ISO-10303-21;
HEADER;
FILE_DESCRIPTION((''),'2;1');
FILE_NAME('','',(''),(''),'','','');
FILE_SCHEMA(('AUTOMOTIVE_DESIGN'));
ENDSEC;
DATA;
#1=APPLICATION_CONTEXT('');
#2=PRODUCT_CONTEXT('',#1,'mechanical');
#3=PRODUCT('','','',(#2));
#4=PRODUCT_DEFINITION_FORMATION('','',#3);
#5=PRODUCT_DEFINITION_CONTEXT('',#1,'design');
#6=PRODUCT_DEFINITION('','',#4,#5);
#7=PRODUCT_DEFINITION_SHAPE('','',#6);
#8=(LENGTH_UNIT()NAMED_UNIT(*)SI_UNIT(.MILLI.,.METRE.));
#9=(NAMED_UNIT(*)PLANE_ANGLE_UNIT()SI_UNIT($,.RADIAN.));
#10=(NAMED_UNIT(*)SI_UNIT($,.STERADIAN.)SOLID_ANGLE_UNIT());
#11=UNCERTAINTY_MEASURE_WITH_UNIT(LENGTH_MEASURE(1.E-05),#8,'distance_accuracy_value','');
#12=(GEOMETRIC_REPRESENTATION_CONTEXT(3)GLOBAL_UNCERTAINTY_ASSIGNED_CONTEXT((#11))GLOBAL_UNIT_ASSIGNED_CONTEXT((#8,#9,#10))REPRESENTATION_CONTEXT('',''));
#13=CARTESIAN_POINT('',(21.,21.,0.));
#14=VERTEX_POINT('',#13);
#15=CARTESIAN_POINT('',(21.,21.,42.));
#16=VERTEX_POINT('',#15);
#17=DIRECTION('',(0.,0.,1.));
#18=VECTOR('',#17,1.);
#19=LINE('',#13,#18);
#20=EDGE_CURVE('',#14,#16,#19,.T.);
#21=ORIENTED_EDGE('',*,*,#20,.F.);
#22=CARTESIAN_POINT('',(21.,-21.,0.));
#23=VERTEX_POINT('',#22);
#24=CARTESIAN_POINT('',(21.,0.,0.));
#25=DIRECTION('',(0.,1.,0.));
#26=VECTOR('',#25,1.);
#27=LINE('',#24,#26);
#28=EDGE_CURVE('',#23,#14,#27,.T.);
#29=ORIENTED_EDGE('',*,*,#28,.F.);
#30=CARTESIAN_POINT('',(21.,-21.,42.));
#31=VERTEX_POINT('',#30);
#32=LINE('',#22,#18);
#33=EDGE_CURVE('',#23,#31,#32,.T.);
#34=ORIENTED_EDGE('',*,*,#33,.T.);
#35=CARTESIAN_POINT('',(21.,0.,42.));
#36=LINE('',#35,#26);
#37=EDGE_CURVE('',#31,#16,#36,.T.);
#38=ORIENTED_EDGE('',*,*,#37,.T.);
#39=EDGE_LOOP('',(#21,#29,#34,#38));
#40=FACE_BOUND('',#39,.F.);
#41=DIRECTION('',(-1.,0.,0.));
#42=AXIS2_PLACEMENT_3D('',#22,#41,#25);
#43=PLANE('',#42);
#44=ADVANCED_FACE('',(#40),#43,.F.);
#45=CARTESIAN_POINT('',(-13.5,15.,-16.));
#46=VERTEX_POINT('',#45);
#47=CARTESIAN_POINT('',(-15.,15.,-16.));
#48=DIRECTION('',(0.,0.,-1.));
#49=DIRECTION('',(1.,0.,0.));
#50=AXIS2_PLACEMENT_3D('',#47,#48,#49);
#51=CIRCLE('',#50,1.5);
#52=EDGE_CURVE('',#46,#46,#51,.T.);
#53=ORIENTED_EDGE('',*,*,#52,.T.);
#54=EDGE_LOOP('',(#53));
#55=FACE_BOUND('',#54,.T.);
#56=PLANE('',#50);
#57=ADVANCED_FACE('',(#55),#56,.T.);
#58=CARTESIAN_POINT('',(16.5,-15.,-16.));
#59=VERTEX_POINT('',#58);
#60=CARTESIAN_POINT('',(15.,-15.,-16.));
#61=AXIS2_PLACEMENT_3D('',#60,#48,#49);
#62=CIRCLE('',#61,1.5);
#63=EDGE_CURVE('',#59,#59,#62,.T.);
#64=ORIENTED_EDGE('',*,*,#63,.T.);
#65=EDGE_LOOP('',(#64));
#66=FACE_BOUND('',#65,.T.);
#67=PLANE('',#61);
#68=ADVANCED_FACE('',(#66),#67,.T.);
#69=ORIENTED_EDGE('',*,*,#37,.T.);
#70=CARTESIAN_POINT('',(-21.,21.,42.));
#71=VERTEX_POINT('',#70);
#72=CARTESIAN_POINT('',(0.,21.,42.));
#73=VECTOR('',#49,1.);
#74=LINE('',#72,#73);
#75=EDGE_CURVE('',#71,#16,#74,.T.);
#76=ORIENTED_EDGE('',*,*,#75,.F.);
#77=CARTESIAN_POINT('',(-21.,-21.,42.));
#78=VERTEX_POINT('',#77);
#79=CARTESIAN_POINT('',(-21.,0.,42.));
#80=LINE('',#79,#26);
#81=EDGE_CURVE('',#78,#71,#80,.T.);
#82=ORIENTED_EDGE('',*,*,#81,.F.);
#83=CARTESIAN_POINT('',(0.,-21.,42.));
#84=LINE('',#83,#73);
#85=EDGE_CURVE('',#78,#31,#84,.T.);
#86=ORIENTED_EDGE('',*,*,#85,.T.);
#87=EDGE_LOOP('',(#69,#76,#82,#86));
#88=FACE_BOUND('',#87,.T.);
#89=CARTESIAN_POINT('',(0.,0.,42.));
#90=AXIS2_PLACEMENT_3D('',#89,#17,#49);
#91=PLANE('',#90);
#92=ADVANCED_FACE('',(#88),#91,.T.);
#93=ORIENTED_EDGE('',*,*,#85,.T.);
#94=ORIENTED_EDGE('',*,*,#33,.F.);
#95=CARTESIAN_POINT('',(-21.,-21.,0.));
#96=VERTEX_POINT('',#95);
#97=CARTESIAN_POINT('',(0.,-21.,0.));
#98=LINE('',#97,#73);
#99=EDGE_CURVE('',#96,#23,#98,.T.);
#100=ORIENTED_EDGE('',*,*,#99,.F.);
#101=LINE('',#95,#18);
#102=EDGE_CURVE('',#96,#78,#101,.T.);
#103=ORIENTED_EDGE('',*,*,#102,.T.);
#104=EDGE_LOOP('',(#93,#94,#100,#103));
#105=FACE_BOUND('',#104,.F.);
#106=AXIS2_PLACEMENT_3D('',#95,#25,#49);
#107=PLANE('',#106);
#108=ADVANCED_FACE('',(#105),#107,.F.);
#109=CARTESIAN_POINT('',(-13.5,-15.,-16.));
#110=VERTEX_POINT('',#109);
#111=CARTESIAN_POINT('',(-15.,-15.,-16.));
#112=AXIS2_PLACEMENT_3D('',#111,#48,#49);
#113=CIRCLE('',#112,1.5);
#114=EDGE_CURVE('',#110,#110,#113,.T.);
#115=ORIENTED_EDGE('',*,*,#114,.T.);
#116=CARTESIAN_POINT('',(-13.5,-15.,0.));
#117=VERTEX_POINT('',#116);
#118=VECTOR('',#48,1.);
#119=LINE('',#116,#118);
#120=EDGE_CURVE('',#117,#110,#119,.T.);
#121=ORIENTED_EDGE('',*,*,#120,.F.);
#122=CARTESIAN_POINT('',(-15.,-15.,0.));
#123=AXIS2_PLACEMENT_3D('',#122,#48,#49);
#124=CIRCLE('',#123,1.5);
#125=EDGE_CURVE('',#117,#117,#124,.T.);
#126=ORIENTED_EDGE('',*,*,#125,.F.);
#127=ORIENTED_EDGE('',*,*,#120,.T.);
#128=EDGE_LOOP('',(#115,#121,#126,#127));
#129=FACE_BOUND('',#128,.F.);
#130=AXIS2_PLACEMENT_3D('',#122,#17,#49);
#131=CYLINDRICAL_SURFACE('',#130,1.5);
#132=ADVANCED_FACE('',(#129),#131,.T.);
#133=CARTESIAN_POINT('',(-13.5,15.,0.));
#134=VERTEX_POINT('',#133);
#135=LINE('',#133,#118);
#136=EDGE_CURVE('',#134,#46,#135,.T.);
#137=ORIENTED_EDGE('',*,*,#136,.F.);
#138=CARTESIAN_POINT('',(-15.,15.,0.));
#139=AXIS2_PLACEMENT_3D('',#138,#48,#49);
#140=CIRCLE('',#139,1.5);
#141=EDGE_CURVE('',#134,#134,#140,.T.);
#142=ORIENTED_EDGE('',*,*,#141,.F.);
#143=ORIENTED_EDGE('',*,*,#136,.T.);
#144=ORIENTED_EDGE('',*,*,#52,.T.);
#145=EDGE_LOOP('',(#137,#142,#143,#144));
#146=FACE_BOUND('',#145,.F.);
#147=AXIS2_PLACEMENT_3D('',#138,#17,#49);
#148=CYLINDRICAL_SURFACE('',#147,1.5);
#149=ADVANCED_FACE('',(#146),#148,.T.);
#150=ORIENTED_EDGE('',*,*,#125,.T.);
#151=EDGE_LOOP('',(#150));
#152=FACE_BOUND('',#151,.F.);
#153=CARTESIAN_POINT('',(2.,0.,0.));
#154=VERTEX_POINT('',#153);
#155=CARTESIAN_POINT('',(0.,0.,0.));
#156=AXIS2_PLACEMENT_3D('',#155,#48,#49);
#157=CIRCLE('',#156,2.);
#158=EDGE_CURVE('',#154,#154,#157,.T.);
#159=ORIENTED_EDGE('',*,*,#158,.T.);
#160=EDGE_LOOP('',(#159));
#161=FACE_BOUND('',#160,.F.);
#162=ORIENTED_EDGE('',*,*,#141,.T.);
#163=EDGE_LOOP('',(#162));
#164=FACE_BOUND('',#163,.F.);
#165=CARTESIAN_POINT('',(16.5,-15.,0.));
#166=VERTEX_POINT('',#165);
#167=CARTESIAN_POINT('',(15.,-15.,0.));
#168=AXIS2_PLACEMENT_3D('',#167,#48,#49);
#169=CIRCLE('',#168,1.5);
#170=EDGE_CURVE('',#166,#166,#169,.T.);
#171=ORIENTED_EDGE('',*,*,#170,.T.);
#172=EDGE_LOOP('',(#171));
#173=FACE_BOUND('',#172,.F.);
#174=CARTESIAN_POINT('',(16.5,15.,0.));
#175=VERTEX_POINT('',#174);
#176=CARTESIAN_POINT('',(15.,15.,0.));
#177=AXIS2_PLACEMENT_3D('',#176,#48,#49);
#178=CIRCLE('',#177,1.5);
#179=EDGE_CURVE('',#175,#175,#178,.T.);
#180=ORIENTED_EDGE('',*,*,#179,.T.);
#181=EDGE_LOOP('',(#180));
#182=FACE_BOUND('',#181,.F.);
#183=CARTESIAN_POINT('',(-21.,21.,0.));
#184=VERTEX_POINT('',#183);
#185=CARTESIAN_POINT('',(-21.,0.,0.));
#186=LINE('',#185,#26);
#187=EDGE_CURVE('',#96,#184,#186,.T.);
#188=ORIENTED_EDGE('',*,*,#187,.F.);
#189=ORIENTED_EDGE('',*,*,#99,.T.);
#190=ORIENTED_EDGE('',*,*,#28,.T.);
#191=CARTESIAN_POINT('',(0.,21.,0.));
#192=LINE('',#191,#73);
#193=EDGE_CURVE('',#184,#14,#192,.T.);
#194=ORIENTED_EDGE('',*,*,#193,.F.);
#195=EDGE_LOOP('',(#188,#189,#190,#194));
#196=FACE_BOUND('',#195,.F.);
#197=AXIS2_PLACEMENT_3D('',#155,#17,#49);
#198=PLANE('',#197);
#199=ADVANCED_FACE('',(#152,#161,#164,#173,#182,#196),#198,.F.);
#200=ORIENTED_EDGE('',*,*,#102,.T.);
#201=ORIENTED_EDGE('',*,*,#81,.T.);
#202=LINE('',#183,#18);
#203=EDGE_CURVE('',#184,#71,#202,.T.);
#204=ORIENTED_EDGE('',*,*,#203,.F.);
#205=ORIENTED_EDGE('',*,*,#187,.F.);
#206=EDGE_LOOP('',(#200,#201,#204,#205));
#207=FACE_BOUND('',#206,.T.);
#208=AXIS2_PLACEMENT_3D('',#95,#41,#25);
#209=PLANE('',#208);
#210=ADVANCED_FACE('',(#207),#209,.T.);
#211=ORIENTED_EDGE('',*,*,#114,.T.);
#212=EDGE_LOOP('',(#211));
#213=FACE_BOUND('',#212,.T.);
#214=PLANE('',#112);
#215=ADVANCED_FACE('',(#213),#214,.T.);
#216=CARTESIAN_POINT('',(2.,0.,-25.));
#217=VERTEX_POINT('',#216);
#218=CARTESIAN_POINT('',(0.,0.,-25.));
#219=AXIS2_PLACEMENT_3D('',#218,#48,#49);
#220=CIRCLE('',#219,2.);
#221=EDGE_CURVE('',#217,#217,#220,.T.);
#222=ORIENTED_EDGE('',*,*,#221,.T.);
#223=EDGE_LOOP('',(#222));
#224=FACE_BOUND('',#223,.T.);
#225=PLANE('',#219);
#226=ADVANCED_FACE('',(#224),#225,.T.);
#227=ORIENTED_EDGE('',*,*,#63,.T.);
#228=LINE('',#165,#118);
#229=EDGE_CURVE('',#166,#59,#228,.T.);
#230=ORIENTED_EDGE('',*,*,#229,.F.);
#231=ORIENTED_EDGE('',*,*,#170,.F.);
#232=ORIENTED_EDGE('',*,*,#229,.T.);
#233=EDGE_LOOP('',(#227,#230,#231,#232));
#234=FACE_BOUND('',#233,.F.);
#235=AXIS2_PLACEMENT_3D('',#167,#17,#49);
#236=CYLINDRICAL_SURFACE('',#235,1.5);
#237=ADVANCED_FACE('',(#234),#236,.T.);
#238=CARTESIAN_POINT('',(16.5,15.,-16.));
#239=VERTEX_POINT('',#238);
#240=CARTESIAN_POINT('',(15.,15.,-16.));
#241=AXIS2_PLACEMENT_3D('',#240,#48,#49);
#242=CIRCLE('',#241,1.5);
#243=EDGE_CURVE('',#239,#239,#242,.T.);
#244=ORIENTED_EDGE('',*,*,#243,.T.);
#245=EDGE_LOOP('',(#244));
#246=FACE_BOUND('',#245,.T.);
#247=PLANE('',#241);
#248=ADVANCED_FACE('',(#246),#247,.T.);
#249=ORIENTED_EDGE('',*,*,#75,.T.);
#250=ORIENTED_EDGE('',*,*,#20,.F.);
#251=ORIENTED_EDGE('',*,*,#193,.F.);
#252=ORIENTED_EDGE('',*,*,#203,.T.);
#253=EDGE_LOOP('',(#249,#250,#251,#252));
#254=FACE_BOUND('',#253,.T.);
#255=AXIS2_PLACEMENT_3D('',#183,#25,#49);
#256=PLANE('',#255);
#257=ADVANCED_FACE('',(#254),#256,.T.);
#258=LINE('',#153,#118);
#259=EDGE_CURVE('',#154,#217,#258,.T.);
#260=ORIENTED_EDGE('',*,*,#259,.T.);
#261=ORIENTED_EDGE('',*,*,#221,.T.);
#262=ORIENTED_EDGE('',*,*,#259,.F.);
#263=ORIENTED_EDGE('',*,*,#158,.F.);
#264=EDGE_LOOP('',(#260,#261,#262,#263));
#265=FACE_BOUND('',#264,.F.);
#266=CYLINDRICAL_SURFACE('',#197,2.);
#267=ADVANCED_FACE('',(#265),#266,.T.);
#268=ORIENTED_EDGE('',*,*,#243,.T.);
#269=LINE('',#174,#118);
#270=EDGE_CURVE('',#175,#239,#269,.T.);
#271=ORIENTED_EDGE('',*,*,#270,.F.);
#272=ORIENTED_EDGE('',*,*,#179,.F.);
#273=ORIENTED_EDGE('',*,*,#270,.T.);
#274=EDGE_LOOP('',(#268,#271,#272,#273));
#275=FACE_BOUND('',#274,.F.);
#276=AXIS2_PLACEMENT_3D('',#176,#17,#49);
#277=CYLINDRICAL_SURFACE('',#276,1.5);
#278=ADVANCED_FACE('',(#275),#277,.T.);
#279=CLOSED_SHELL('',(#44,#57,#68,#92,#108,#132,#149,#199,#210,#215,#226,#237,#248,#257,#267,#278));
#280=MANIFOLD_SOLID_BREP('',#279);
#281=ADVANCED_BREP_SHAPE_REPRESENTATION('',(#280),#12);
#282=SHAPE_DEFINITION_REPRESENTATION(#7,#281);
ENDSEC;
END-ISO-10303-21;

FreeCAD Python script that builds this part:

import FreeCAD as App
import Part
import Sketcher


def add_polygon(sketch, points):
    """Adds a closed chain of lines whose ends are joined by coincident constraints."""
    first, n = sketch.GeometryCount, len(points)
    for a, b in zip(points, points[1:] + points[:1]):
        sketch.addGeometry(Part.LineSegment(App.Vector(*a, 0), App.Vector(*b, 0)), False)
    for i in range(n):
        sketch.addConstraint(Sketcher.Constraint("Coincident", first + i, 2, first + (i + 1) % n, 1))

doc = App.newDocument("Part")
body = doc.addObject("PartDesign::Body", "Body")

sketch1 = body.newObject("Sketcher::SketchObject", "Sketch")
sketch1.AttachmentSupport = (doc.getObject("XY_Plane"), [""])
sketch1.MapMode = "FlatFace"
add_polygon(sketch1, [(-21, 21), (-21, -21), (21, -21), (21, 21)])
sketch1.addConstraint(Sketcher.Constraint("Vertical", 0))
sketch1.addConstraint(Sketcher.Constraint("Horizontal", 1))
sketch1.addConstraint(Sketcher.Constraint("Vertical", 2))
sketch1.addConstraint(Sketcher.Constraint("Horizontal", 3))
sketch1.addConstraint(Sketcher.Constraint("Symmetric", 0, 2, 2, 2, -1, 1))
sketch1.addConstraint(Sketcher.Constraint("Equal", 3, 0))
sketch1.addConstraint(Sketcher.Constraint("DistanceX", 1, 1, 1, 2, 42.0))
pad1 = body.newObject("PartDesign::Pad", "Pad")
pad1.Profile = sketch1
pad1.Length = 42

sketch2 = body.newObject("Sketcher::SketchObject", "Sketch001")
sketch2.AttachmentSupport = (doc.getObject("XY_Plane"), [""])
sketch2.MapMode = "FlatFace"
sketch2.addGeometry(Part.Circle(App.Vector(0, 0, 0), App.Vector(0, 0, 1), 2), False)
sketch2.addConstraint(Sketcher.Constraint("Coincident", 0, 3, -1, 1))
sketch2.addConstraint(Sketcher.Constraint("Diameter", 0, 4.0))
pad2 = body.newObject("PartDesign::Pad", "Pad001")
pad2.Profile = sketch2
pad2.Length = 25
pad2.Reversed = True

sketch3 = body.newObject("Sketcher::SketchObject", "Sketch002")
sketch3.AttachmentSupport = (doc.getObject("XY_Plane"), [""])
sketch3.MapMode = "FlatFace"
sketch3.addGeometry(Part.Circle(App.Vector(-15, -15, 0), App.Vector(0, 0, 1), 1.5), False)
sketch3.addGeometry(Part.Circle(App.Vector(15, -15, 0), App.Vector(0, 0, 1), 1.5), False)
sketch3.addGeometry(Part.Circle(App.Vector(15, 15, 0), App.Vector(0, 0, 1), 1.5), False)
sketch3.addGeometry(Part.Circle(App.Vector(-15, 15, 0), App.Vector(0, 0, 1), 1.5), False)
sketch3.addConstraint(Sketcher.Constraint("Equal", 0, 1))
sketch3.addConstraint(Sketcher.Constraint("Equal", 1, 2))
sketch3.addConstraint(Sketcher.Constraint("Equal", 2, 3))
sketch3.addConstraint(Sketcher.Constraint("Symmetric", 0, 3, 2, 3, -1, 1))
sketch3.addConstraint(Sketcher.Constraint("Symmetric", 1, 3, 3, 3, -1, 1))
sketch3.addConstraint(Sketcher.Constraint("Symmetric", 0, 3, 1, 3, -2))
sketch3.addConstraint(Sketcher.Constraint("Diameter", 0, 3.0))
sketch3.addConstraint(Sketcher.Constraint("DistanceX", 0, 3, -1, 1, 15.0))
sketch3.addConstraint(Sketcher.Constraint("DistanceY", 0, 3, -1, 1, 15.0))
pad3 = body.newObject("PartDesign::Pad", "Pad002")
pad3.Profile = sketch3
pad3.Length = 16
pad3.Reversed = True

doc.recompute()
